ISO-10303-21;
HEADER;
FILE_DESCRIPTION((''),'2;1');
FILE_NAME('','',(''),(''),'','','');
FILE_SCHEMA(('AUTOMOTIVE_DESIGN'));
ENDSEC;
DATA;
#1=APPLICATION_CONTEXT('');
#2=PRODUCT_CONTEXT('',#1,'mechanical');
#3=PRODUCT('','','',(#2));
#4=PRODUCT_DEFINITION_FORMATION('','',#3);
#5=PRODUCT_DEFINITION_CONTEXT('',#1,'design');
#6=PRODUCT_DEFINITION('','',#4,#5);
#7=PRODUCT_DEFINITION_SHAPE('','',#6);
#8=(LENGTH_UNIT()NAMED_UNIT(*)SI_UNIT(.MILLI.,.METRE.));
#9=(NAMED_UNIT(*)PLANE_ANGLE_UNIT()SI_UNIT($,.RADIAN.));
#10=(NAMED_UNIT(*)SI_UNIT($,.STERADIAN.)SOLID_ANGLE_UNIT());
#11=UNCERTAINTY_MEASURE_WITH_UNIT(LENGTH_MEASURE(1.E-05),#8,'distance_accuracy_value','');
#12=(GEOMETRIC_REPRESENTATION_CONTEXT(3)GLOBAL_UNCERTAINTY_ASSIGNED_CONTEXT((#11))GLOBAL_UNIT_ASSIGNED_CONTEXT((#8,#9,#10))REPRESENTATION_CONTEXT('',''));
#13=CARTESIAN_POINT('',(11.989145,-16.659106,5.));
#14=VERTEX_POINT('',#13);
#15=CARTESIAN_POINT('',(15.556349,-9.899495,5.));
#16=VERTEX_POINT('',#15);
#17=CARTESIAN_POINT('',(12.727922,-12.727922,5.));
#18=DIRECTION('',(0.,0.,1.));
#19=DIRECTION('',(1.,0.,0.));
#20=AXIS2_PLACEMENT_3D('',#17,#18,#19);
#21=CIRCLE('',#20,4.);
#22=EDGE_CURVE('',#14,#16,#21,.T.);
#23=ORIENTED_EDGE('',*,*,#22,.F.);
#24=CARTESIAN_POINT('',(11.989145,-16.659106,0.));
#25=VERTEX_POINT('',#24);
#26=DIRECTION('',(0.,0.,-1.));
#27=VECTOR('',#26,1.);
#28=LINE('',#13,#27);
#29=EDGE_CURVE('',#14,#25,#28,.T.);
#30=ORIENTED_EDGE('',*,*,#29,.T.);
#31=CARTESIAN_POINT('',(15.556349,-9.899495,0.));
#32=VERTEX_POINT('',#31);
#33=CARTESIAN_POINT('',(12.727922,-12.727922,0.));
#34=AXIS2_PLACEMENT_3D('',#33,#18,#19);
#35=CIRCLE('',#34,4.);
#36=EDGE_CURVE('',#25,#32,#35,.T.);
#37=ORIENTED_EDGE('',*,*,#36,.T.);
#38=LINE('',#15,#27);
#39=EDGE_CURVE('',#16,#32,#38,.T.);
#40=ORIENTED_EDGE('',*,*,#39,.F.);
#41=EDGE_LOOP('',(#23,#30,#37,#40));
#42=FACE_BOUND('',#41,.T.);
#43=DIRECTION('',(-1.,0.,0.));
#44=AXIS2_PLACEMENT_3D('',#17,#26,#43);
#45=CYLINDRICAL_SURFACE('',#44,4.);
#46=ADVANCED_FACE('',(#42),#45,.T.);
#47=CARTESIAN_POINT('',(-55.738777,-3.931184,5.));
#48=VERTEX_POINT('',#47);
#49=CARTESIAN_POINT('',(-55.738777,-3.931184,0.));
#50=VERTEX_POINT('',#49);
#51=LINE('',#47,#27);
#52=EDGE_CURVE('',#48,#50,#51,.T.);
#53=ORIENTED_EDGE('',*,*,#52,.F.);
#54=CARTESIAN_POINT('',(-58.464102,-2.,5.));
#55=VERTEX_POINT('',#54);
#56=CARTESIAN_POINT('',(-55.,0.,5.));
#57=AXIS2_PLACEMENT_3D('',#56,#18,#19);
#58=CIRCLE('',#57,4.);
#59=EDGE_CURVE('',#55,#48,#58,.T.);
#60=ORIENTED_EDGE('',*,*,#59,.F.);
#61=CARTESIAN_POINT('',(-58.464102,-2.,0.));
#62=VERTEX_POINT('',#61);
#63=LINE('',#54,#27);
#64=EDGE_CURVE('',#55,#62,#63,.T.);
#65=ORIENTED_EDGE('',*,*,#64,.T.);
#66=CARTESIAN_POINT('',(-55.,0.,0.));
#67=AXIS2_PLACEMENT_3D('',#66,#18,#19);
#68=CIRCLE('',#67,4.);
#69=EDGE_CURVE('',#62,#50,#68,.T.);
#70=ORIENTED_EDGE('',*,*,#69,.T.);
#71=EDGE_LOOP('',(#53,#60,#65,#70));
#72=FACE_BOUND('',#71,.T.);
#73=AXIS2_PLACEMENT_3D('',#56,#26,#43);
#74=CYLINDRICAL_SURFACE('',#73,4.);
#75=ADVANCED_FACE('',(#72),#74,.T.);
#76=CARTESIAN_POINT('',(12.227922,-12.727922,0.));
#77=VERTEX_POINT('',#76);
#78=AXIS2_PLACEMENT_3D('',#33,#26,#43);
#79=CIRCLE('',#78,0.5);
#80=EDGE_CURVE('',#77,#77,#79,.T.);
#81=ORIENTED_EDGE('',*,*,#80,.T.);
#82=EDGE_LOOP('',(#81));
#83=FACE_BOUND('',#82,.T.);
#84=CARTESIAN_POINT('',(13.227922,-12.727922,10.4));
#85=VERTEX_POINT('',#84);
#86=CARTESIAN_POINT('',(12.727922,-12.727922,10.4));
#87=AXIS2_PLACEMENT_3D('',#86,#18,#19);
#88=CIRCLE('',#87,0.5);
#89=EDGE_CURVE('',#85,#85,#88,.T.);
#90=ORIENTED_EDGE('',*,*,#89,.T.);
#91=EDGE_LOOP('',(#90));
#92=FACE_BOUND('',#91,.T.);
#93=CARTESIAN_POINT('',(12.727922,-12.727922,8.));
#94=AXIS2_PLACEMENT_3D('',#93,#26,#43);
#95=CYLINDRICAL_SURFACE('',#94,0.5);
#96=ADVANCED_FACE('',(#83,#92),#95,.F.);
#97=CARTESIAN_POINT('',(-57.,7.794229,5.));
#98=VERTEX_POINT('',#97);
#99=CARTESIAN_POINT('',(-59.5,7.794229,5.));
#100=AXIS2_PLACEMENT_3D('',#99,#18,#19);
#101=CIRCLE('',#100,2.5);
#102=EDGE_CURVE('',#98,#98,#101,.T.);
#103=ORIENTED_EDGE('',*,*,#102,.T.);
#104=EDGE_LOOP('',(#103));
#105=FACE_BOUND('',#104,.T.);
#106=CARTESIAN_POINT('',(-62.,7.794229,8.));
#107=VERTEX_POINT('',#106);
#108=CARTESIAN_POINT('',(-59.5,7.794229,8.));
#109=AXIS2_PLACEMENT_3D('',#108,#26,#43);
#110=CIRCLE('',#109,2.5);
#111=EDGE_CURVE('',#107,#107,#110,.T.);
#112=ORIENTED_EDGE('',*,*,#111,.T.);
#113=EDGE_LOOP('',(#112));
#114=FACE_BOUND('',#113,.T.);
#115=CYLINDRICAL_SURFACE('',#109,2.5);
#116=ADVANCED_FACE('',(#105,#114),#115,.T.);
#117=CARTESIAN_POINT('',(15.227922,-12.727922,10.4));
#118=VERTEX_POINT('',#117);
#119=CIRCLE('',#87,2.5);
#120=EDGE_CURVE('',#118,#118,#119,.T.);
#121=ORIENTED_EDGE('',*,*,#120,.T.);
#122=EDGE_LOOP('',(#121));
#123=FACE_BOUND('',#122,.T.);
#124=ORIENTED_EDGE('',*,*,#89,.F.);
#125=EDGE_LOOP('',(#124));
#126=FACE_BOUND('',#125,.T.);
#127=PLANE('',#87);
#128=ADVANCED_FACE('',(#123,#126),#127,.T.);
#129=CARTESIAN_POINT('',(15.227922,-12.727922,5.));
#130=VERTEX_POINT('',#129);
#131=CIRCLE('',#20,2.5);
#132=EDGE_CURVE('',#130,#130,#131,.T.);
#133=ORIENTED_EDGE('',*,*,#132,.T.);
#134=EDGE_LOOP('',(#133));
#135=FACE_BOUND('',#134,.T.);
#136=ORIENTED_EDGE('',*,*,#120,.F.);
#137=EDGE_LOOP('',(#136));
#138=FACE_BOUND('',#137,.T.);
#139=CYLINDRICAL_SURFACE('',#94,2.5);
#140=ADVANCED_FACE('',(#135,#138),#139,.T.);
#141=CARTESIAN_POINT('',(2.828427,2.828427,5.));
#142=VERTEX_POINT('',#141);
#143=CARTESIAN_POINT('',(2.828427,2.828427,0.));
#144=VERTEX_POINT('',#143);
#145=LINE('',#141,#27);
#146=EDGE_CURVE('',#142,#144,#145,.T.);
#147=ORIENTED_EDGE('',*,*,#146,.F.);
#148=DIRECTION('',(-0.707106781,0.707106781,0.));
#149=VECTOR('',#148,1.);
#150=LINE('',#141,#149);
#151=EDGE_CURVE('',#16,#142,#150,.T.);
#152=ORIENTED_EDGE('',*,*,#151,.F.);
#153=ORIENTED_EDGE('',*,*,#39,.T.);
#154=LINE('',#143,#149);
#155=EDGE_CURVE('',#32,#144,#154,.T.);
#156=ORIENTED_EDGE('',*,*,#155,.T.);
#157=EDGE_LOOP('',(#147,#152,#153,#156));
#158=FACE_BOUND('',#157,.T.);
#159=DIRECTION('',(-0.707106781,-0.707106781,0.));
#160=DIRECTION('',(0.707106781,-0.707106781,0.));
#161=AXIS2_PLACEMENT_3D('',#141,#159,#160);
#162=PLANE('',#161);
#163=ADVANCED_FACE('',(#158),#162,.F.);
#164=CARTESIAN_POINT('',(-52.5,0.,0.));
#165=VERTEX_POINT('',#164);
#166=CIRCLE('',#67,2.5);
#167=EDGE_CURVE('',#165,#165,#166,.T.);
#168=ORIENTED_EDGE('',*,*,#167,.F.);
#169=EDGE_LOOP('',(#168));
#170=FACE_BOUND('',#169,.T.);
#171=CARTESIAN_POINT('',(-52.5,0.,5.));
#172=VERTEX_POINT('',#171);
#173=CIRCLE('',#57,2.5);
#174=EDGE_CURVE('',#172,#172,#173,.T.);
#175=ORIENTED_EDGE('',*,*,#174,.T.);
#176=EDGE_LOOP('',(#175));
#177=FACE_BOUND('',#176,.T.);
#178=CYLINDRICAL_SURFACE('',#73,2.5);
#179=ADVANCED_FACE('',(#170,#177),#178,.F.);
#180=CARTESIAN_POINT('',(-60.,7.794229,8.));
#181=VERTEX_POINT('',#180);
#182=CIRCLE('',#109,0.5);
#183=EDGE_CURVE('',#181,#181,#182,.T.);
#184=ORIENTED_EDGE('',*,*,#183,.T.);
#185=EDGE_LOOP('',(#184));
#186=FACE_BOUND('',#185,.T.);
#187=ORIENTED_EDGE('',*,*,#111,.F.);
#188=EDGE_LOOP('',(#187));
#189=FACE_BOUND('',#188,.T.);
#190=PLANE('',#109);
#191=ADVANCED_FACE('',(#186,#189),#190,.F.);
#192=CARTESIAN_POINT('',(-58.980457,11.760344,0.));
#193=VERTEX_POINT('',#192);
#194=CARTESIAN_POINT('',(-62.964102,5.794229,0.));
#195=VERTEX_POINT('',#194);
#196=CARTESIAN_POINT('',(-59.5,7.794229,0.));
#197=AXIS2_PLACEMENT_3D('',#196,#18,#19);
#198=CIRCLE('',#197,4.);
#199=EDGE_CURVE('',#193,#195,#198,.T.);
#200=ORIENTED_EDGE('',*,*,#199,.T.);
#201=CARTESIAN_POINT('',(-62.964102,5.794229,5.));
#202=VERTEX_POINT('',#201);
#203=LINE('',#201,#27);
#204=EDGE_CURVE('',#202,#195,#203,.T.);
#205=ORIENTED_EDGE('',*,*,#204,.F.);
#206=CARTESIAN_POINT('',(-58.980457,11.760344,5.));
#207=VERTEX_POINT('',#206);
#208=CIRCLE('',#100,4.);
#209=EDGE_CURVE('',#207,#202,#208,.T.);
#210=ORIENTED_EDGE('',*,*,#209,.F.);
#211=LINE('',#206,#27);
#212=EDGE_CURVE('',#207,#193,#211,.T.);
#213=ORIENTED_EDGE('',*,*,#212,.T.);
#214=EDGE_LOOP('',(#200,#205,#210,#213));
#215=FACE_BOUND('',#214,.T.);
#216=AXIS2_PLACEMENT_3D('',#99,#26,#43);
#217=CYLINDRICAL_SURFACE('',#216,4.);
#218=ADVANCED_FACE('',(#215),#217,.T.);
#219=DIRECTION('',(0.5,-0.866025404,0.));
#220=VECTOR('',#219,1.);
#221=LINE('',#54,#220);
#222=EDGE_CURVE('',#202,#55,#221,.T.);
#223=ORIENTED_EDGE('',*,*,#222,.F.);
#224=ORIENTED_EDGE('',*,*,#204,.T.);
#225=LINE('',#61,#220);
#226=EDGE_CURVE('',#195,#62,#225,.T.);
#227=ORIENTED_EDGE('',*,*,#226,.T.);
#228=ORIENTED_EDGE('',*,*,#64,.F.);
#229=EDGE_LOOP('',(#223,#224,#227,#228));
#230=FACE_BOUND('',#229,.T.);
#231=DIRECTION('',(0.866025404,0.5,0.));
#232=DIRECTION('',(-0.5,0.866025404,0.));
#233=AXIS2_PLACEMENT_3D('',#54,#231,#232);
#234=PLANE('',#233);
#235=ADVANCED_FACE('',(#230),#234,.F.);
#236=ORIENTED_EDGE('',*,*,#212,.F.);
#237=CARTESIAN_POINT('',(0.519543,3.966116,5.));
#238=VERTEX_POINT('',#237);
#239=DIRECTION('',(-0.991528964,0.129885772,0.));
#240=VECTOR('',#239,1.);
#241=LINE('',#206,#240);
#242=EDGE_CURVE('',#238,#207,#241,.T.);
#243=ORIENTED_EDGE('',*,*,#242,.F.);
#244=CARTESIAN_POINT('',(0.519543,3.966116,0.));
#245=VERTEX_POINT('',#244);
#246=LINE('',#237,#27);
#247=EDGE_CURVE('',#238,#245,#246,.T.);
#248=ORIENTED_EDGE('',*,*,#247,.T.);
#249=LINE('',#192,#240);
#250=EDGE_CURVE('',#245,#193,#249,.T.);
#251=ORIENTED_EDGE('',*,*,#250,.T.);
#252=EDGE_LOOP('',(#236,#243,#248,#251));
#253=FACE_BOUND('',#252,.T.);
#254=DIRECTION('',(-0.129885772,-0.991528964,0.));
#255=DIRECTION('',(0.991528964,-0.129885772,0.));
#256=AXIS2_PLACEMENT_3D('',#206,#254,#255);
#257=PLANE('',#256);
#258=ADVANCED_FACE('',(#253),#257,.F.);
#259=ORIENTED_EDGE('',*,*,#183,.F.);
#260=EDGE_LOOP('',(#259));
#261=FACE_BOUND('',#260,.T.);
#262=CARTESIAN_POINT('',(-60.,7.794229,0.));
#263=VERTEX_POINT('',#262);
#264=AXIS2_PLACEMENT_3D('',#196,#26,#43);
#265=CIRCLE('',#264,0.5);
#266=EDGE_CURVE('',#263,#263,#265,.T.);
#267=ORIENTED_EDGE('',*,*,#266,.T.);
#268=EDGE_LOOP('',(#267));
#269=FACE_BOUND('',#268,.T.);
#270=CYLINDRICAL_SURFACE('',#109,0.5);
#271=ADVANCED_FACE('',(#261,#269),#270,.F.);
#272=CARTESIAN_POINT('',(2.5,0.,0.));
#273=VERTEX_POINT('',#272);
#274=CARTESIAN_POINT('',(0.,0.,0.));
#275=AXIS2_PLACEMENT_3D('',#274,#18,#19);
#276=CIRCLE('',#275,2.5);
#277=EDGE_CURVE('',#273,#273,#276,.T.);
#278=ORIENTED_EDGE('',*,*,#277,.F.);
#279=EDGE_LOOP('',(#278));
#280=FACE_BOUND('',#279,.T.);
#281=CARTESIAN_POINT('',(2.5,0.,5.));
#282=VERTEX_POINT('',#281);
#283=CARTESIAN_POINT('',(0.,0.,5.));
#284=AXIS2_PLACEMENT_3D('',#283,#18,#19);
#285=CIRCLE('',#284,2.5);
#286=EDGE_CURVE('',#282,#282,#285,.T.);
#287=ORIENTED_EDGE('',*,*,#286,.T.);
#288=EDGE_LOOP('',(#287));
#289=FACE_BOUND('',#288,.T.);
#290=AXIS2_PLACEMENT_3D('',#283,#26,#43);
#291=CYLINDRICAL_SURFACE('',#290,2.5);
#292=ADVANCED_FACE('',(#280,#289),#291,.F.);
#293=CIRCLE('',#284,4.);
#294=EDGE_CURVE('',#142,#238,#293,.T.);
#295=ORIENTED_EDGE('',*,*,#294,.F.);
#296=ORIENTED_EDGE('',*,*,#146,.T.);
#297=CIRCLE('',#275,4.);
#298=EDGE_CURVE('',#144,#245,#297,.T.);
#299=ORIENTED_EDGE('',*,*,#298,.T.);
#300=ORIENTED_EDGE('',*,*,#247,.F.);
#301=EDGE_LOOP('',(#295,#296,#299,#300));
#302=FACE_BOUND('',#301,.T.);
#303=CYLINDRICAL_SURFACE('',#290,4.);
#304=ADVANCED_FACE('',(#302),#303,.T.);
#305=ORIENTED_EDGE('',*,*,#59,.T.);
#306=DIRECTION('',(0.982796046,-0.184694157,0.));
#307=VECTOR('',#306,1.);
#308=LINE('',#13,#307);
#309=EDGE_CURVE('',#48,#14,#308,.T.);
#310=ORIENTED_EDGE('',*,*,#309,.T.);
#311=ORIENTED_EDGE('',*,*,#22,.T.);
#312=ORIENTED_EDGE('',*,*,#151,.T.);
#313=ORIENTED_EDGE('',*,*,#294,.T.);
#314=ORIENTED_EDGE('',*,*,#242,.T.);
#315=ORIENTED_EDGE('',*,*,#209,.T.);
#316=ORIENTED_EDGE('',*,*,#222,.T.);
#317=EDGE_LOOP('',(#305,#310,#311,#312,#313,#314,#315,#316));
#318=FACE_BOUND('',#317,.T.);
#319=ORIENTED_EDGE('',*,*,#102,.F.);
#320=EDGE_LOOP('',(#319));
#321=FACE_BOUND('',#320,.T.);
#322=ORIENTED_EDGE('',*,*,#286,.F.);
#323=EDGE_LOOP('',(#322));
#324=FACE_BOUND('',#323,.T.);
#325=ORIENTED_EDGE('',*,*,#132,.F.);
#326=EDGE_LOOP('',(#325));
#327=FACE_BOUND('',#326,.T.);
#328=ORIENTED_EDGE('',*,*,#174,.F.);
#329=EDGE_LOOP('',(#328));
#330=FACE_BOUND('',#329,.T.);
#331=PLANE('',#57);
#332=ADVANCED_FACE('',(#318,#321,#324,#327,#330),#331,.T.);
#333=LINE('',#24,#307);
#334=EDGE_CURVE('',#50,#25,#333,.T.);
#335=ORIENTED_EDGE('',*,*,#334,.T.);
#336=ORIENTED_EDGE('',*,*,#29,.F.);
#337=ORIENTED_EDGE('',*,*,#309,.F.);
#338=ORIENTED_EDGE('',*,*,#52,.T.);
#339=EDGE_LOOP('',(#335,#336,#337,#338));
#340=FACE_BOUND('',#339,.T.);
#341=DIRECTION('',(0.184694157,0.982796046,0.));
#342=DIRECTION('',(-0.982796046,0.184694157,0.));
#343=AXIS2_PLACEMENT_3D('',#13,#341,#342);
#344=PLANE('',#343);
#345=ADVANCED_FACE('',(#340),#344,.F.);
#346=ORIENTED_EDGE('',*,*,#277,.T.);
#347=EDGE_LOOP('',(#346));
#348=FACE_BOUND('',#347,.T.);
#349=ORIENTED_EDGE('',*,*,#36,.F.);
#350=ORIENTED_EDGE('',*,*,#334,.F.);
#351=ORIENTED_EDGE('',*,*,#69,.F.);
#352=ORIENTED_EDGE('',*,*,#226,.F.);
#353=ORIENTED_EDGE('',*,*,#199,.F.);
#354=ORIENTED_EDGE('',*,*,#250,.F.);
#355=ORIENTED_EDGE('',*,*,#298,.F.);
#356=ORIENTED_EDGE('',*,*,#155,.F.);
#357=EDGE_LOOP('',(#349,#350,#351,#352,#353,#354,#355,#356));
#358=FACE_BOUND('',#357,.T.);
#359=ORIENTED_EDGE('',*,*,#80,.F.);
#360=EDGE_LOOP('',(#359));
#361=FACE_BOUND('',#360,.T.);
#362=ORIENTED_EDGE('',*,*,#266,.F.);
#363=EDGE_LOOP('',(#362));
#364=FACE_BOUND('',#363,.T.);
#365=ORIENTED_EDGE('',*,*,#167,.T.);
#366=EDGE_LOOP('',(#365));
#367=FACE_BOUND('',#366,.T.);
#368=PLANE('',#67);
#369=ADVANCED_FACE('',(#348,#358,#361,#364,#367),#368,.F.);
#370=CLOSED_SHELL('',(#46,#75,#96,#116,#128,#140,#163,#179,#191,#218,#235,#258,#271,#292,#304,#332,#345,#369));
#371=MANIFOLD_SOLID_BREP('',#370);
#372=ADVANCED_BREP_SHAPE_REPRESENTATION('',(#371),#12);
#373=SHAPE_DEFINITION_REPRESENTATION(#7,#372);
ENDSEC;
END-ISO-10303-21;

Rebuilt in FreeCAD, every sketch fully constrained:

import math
import FreeCAD as App
import Part
import Sketcher

V = App.Vector
Q = App.Units.Quantity

doc = App.newDocument("Part")
params = doc.addObject("Spreadsheet::Sheet", "Params")
for row, (alias, value) in enumerate([
    ("sketch1_diameter", "5 mm"),
    ("sketch1_radius", "4 mm"),
    ("sketch1_length", "9 mm"),
    ("sketch1_length2", "18 mm"),
    ("pad1_length", "5 mm"),
    ("sketch2_diameter", "5 mm"),
    ("sketch2_diameter2", "1 mm"),
    ("pad2_length", "8 mm"),
    ("sketch3_diameter", "5 mm"),
    ("sketch3_diameter2", "1 mm"),
    ("pad3_length", "2.4 mm"),
], start=1):
    params.set(f"A{row}", alias)
    params.set(f"B{row}", "=" + value)
    params.setAlias(f"B{row}", alias)

body = doc.addObject("PartDesign::Body", "Body")

# Sketch on XY plane
sketch1 = body.newObject("Sketcher::SketchObject", "Sketch")
sketch1.AttachmentSupport = (doc.getObject("XY_Plane"), [""])
sketch1.MapMode = "FlatFace"
sketch1.addGeometry([
    Part.LineSegment(V(0.5, 4, 0), V(-59, 11.8, 0)),  # 0
    Part.ArcOfCircle(Part.Circle(V(-59.5, 7.8, 0), V(0, 0, 1), 4), math.radians(83), math.radians(210)),  # 1
    Part.LineSegment(V(-63, 5.8, 0), V(-58.5, -2, 0)),  # 2
    Part.ArcOfCircle(Part.Circle(V(-55, 0, 0), V(0, 0, 1), 4), math.radians(-150), math.radians(-101)),  # 3
    Part.LineSegment(V(-55.7, -3.9, 0), V(12, -16.7, 0)),  # 4
    Part.ArcOfCircle(Part.Circle(V(12.7, -12.7, 0), V(0, 0, 1), 4), math.radians(-101), math.radians(45)),  # 5
    Part.LineSegment(V(15.6, -9.9, 0), V(2.8, 2.8, 0)),  # 6
    Part.ArcOfCircle(Part.Circle(V(0, 0, 0), V(0, 0, 1), 4), math.radians(45), math.radians(83)),  # 7
    Part.Circle(V(12.7, -12.7, 0), V(0, 0, 1), 2.5),  # 8
    Part.Circle(V(0, 0, 0), V(0, 0, 1), 2.5),  # 9
    Part.Circle(V(-55, 0, 0), V(0, 0, 1), 2.5),  # 10
    Part.Circle(V(-59.5, 7.8, 0), V(0, 0, 1), 2.5),  # 11
], False)
sketch1.addConstraint([
    Sketcher.Constraint("Tangent", 0, 2, 1, 1),
    Sketcher.Constraint("Tangent", 1, 2, 2, 1),
    Sketcher.Constraint("Tangent", 2, 2, 3, 1),
    Sketcher.Constraint("Tangent", 3, 2, 4, 1),
    Sketcher.Constraint("Tangent", 4, 2, 5, 1),
    Sketcher.Constraint("Tangent", 5, 2, 6, 1),
    Sketcher.Constraint("Tangent", 6, 2, 7, 1),
    Sketcher.Constraint("Tangent", 7, 2, 0, 1),
    Sketcher.Constraint("Coincident", 7, 3, -1, 1),
    Sketcher.Constraint("Coincident", 9, 3, -1, 1),
    Sketcher.Constraint("Coincident", 8, 3, 5, 3),
    Sketcher.Constraint("Coincident", 10, 3, 3, 3),
    Sketcher.Constraint("Coincident", 11, 3, 1, 3),
    Sketcher.Constraint("Equal", 1, 3),
    Sketcher.Constraint("Equal", 3, 5),
    Sketcher.Constraint("Equal", 5, 7),
    Sketcher.Constraint("Equal", 8, 9),
    Sketcher.Constraint("Equal", 9, 10),
    Sketcher.Constraint("Equal", 10, 11),
    Sketcher.Constraint("PointOnObject", 3, 3, -1),
    Sketcher.Constraint("Diameter", 8, 5.0),
    Sketcher.Constraint("Radius", 1, 4.0),
    Sketcher.Constraint("Angle", 2, Q("-60 deg")),
    Sketcher.Constraint("Angle", 6, Q("135 deg")),
    Sketcher.Constraint("Distance", 2, 9.0),
    Sketcher.Constraint("Distance", 6, 18.0),
    Sketcher.Constraint("DistanceX", 3, 3, -1, 1, 55.0),
])
sketch1.setExpression("Constraints[20]", "Params.sketch1_diameter")
sketch1.setExpression("Constraints[21]", "Params.sketch1_radius")
sketch1.setExpression("Constraints[24]", "Params.sketch1_length")
sketch1.setExpression("Constraints[25]", "Params.sketch1_length2")
pad1 = body.newObject("PartDesign::Pad", "Pad")
pad1.Profile = sketch1
pad1.setExpression("Length", "Params.pad1_length")

# Sketch on XY plane
sketch2 = body.newObject("Sketcher::SketchObject", "Sketch001")
sketch2.AttachmentSupport = (doc.getObject("XY_Plane"), [""])
sketch2.MapMode = "FlatFace"
sketch2.addGeometry([
    Part.Circle(V(-59.5, 7.8, 0), V(0, 0, 1), 2.5),
    Part.Circle(V(-59.5, 7.8, 0), V(0, 0, 1), 0.5),
    Part.Circle(V(12.7, -12.7, 0), V(0, 0, 1), 2.5),
    Part.Circle(V(12.7, -12.7, 0), V(0, 0, 1), 0.5),
], False)
sketch2.addConstraint([
    Sketcher.Constraint("Coincident", 1, 3, 0, 3),
    Sketcher.Constraint("Coincident", 3, 3, 2, 3),
    Sketcher.Constraint("Equal", 0, 2),
    Sketcher.Constraint("Equal", 1, 3),
    Sketcher.Constraint("Diameter", 0, 5.0),
    Sketcher.Constraint("Diameter", 1, 1.0),
    Sketcher.Constraint("DistanceX", 0, 3, -1, 1, 59.5),
    Sketcher.Constraint("DistanceY", -1, 1, 0, 3, 7.794229),
    Sketcher.Constraint("DistanceY", 2, 3, 0, 3, 20.522151),
    Sketcher.Constraint("DistanceX", -1, 1, 2, 3, 12.727922),
])
sketch2.setExpression("Constraints[4]", "Params.sketch2_diameter")
sketch2.setExpression("Constraints[5]", "Params.sketch2_diameter2")
pad2 = body.newObject("PartDesign::Pad", "Pad001")
pad2.Profile = sketch2
pad2.setExpression("Length", "Params.pad2_length")

# Sketch on XY plane
sketch3 = body.newObject("Sketcher::SketchObject", "Sketch002")
sketch3.AttachmentSupport = (doc.getObject("XY_Plane"), [""])
sketch3.MapMode = "FlatFace"
sketch3.AttachmentOffset = App.Placement(V(0, 0, 8), App.Rotation())
sketch3.addGeometry([
    Part.Circle(V(12.7, -12.7, 0), V(0, 0, 1), 2.5),
    Part.Circle(V(12.7, -12.7, 0), V(0, 0, 1), 0.5),
], False)
sketch3.addConstraint([
    Sketcher.Constraint("Coincident", 1, 3, 0, 3),
    Sketcher.Constraint("Diameter", 0, 5.0),
    Sketcher.Constraint("Diameter", 1, 1.0),
    Sketcher.Constraint("DistanceX", -1, 1, 0, 3, 12.727922),
    Sketcher.Constraint("DistanceY", 0, 3, -1, 1, 12.727922),
])
sketch3.setExpression("Constraints[1]", "Params.sketch3_diameter")
sketch3.setExpression("Constraints[2]", "Params.sketch3_diameter2")
pad3 = body.newObject("PartDesign::Pad", "Pad002")
pad3.Profile = sketch3
pad3.setExpression("Length", "Params.pad3_length")

doc.recompute()
